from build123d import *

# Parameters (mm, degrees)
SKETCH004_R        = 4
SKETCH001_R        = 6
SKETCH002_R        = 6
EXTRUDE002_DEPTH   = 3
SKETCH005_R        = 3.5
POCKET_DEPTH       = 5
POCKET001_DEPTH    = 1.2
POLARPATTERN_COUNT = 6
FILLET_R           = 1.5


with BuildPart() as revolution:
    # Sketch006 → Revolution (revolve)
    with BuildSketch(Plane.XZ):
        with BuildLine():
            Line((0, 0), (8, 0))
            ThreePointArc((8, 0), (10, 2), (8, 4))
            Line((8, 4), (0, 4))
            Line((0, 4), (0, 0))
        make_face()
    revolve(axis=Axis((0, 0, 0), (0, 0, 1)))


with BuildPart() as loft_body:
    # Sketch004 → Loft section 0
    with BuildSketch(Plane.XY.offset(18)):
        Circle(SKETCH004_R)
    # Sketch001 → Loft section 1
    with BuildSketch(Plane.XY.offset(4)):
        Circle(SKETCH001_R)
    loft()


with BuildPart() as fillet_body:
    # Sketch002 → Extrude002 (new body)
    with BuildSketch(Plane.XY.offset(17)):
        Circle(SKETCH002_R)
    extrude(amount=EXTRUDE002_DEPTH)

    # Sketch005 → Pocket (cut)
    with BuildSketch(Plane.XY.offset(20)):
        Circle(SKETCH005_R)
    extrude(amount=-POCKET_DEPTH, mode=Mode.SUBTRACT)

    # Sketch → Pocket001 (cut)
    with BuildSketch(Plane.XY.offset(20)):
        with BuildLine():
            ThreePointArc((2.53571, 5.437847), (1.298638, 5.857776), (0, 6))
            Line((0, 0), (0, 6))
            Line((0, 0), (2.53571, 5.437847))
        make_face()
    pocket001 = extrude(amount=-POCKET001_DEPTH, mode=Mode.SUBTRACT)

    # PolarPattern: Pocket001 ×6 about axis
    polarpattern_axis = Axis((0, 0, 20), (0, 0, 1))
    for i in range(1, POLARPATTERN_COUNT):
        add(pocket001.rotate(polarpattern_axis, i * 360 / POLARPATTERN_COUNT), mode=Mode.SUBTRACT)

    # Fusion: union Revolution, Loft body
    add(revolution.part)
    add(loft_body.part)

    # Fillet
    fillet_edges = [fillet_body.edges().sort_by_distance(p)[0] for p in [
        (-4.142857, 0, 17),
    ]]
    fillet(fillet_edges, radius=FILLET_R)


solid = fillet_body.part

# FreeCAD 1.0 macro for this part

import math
import FreeCAD as App
import Part
import Sketcher
Q = App.Units.Quantity


def edges_at(feature, points):
    """Names of the edges that pass closest to the given points."""
    edges = feature.Shape.Edges
    near = lambda p: min(range(len(edges)), key=lambda i: edges[i].distToShape(Part.Vertex(*p))[0])
    return sorted({f"Edge{near(p) + 1}" for p in points})

doc = App.newDocument("Part")
body = doc.addObject("PartDesign::Body", "Body")

# Sketch on XZ plane
sketch1 = body.newObject("Sketcher::SketchObject", "Sketch")
sketch1.AttachmentSupport = (doc.getObject("XZ_Plane"), [""])
sketch1.MapMode = "FlatFace"
sketch1.addGeometry(Part.LineSegment(App.Vector(0, 0, 0), App.Vector(8, 0, 0)), False)
sketch1.addGeometry(Part.ArcOfCircle(Part.Circle(App.Vector(8, 2, 0), App.Vector(0, 0, 1), 2), math.radians(-90), math.radians(90)), False)
sketch1.addGeometry(Part.LineSegment(App.Vector(8, 4, 0), App.Vector(0, 4, 0)), False)
sketch1.addGeometry(Part.LineSegment(App.Vector(0, 4, 0), App.Vector(0, 0, 0)), False)
sketch1.addConstraint(Sketcher.Constraint("Tangent", 0, 2, 1, 1))
sketch1.addConstraint(Sketcher.Constraint("Tangent", 1, 2, 2, 1))
sketch1.addConstraint(Sketcher.Constraint("Coincident", 2, 2, 3, 1))
sketch1.addConstraint(Sketcher.Constraint("Coincident", 3, 2, 0, 1))
sketch1.addConstraint(Sketcher.Constraint("Horizontal", 0))
sketch1.addConstraint(Sketcher.Constraint("Horizontal", 2))
sketch1.addConstraint(Sketcher.Constraint("Vertical", 3))
sketch1.addConstraint(Sketcher.Constraint("Coincident", 3, 2, -1, 1))
sketch1.addConstraint(Sketcher.Constraint("Radius", 1, 2.0))
sketch1.addConstraint(Sketcher.Constraint("DistanceX", 0, 1, 0, 2, 8.0))
revolution = body.newObject("PartDesign::Revolution", "Revolution")
revolution.Profile = sketch1
revolution.ReferenceAxis = (sketch1, ["V_Axis"])
revolution.Angle = 360
body2 = doc.addObject("PartDesign::Body", "Body001")

# Sketch on XY plane
sketch2 = body2.newObject("Sketcher::SketchObject", "Sketch001")
sketch2.AttachmentSupport = (doc.getObject("XY_Plane001"), [""])
sketch2.MapMode = "FlatFace"
sketch2.AttachmentOffset = App.Placement(App.Vector(0, 0, 18), App.Rotation())
sketch2.addGeometry(Part.Circle(App.Vector(0, 0, 0), App.Vector(0, 0, 1), 4), False)
sketch2.addConstraint(Sketcher.Constraint("Coincident", 0, 3, -1, 1))
sketch2.addConstraint(Sketcher.Constraint("Diameter", 0, 8.0))

# Sketch on XY plane
sketch3 = body2.newObject("Sketcher::SketchObject", "Sketch002")
sketch3.AttachmentSupport = (doc.getObject("XY_Plane001"), [""])
sketch3.MapMode = "FlatFace"
sketch3.AttachmentOffset = App.Placement(App.Vector(0, 0, 4), App.Rotation())
sketch3.addGeometry(Part.Circle(App.Vector(0, 0, 0), App.Vector(0, 0, 1), 6), False)
sketch3.addConstraint(Sketcher.Constraint("Coincident", 0, 3, -1, 1))
sketch3.addConstraint(Sketcher.Constraint("Diameter", 0, 12.0))

additiveloft = body2.newObject("PartDesign::AdditiveLoft", "AdditiveLoft")
additiveloft.Profile = sketch2
additiveloft.Sections = [sketch3]
body3 = doc.addObject("PartDesign::Body", "Body002")
body3.AllowCompound = True

# Sketch on XY plane
sketch4 = body3.newObject("Sketcher::SketchObject", "Sketch003")
sketch4.AttachmentSupport = (doc.getObject("XY_Plane002"), [""])
sketch4.MapMode = "FlatFace"
sketch4.AttachmentOffset = App.Placement(App.Vector(0, 0, 17), App.Rotation())
sketch4.addGeometry(Part.Circle(App.Vector(0, 0, 0), App.Vector(0, 0, 1), 6), False)
sketch4.addConstraint(Sketcher.Constraint("Coincident", 0, 3, -1, 1))
sketch4.addConstraint(Sketcher.Constraint("Diameter", 0, 12.0))
pad1 = body3.newObject("PartDesign::Pad", "Pad")
pad1.Profile = sketch4
pad1.Length = 3

# Sketch on XY plane
sketch5 = body3.newObject("Sketcher::SketchObject", "Sketch004")
sketch5.AttachmentSupport = (doc.getObject("XY_Plane002"), [""])
sketch5.MapMode = "FlatFace"
sketch5.AttachmentOffset = App.Placement(App.Vector(0, 0, 20), App.Rotation())
sketch5.addGeometry(Part.Circle(App.Vector(0, 0, 0), App.Vector(0, 0, 1), 3.5), False)
sketch5.addConstraint(Sketcher.Constraint("Coincident", 0, 3, -1, 1))
sketch5.addConstraint(Sketcher.Constraint("Diameter", 0, 7.0))
pocket1 = body3.newObject("PartDesign::Pocket", "Pocket")
pocket1.Profile = sketch5
pocket1.Length = 5

# Sketch on XY plane
sketch6 = body3.newObject("Sketcher::SketchObject", "Sketch005")
sketch6.AttachmentSupport = (doc.getObject("XY_Plane002"), [""])
sketch6.MapMode = "FlatFace"
sketch6.AttachmentOffset = App.Placement(App.Vector(0, 0, 20), App.Rotation())
sketch6.addGeometry(Part.ArcOfCircle(Part.Circle(App.Vector(0, 0, 0), App.Vector(0, 0, 1), 6), math.radians(65), math.radians(90)), False)
sketch6.addGeometry(Part.LineSegment(App.Vector(0, 6, 0), App.Vector(0, 0, 0)), False)
sketch6.addGeometry(Part.LineSegment(App.Vector(0, 0, 0), App.Vector(2.5, 5.4, 0)), False)
sketch6.addConstraint(Sketcher.Constraint("Coincident", 0, 2, 1, 1))
sketch6.addConstraint(Sketcher.Constraint("Coincident", 1, 2, 2, 1))
sketch6.addConstraint(Sketcher.Constraint("Coincident", 2, 2, 0, 1))
sketch6.addConstraint(Sketcher.Constraint("Vertical", 1))
sketch6.addConstraint(Sketcher.Constraint("Coincident", 0, 3, -1, 1))
sketch6.addConstraint(Sketcher.Constraint("Coincident", 1, 2, -1, 1))
sketch6.addConstraint(Sketcher.Constraint("DistanceY", 1, 2, 1, 1, 6.0))
sketch6.addConstraint(Sketcher.Constraint("Angle", 2, Q("64.999997 deg")))
pocket2 = body3.newObject("PartDesign::Pocket", "Pocket001")
pocket2.Profile = sketch6
pocket2.Length = 1.2
doc.recompute()

polarpattern = body3.newObject("PartDesign::PolarPattern", "PolarPattern")
polarpattern.Originals = [pocket2]
polarpattern.Axis = (doc.getObject("Z_Axis002"), [""])
polarpattern.Angle = 360
polarpattern.Occurrences = 6
body3.Tip = polarpattern
doc.recompute()

boolean = body3.newObject("PartDesign::Boolean", "Boolean")
boolean.Type = "Fuse"
boolean.addObjects([body])
doc.recompute()

boolean2 = body3.newObject("PartDesign::Boolean", "Boolean001")
boolean2.Type = "Fuse"
boolean2.addObjects([body2])
doc.recompute()

fillet = body3.newObject("PartDesign::Fillet", "Fillet")
fillet.Base = (boolean2, edges_at(boolean2, [(-4.143, 0, 17)]))
fillet.Radius = 1.5

doc.recompute()
